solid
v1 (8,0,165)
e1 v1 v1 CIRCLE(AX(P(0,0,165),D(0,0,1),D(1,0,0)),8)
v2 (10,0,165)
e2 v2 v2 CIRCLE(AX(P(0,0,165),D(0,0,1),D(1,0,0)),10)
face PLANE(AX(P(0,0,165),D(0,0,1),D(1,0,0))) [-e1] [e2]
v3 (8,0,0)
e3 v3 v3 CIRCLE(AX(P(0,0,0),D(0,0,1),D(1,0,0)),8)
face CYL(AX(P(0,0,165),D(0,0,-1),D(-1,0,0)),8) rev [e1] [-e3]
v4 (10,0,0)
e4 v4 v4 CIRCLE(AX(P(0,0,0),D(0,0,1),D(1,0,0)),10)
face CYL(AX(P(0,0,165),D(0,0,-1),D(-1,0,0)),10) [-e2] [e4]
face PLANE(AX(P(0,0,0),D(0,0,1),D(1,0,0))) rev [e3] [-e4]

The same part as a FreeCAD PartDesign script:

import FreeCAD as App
import Part
import Sketcher
from FreeCAD import Vector
Q = App.Units.Quantity

doc = App.newDocument("Part")
params = doc.addObject("Spreadsheet::Sheet", "Params")
for row, (alias, value) in enumerate([
    ("sketch1_diameter", "20 mm"),
    ("sketch1_diameter2", "16 mm"),
    ("pad1_length", "165 mm"),
], start=1):
    params.set(f"A{row}", alias)
    params.set(f"B{row}", "=" + value)
    params.setAlias(f"B{row}", alias)

body = doc.addObject("PartDesign::Body", "Body")

# Sketch on XY plane
sketch1 = body.newObject("Sketcher::SketchObject", "Sketch")
sketch1.AttachmentSupport = (doc.getObject("XY_Plane"), [""])
sketch1.MapMode = "FlatFace"
sketch1.addGeometry(Part.Circle(Vector(0, 0, 0), Vector(0, 0, 1), 10), False)
sketch1.addGeometry(Part.Circle(Vector(0, 0, 0), Vector(0, 0, 1), 8), False)
sketch1.addConstraint(Sketcher.Constraint("Coincident", 0, 3, -1, 1))
sketch1.addConstraint(Sketcher.Constraint("Coincident", 1, 3, -1, 1))
sketch1.addConstraint(Sketcher.Constraint("Diameter", 0, Q("20 mm")))
sketch1.addConstraint(Sketcher.Constraint("Diameter", 1, Q("16 mm")))
sketch1.setExpression("Constraints[2]", "Params.sketch1_diameter")
sketch1.setExpression("Constraints[3]", "Params.sketch1_diameter2")
pad1 = body.newObject("PartDesign::Pad", "Pad")
pad1.Profile = sketch1
pad1.setExpression("Length", "Params.pad1_length")

doc.recompute()
